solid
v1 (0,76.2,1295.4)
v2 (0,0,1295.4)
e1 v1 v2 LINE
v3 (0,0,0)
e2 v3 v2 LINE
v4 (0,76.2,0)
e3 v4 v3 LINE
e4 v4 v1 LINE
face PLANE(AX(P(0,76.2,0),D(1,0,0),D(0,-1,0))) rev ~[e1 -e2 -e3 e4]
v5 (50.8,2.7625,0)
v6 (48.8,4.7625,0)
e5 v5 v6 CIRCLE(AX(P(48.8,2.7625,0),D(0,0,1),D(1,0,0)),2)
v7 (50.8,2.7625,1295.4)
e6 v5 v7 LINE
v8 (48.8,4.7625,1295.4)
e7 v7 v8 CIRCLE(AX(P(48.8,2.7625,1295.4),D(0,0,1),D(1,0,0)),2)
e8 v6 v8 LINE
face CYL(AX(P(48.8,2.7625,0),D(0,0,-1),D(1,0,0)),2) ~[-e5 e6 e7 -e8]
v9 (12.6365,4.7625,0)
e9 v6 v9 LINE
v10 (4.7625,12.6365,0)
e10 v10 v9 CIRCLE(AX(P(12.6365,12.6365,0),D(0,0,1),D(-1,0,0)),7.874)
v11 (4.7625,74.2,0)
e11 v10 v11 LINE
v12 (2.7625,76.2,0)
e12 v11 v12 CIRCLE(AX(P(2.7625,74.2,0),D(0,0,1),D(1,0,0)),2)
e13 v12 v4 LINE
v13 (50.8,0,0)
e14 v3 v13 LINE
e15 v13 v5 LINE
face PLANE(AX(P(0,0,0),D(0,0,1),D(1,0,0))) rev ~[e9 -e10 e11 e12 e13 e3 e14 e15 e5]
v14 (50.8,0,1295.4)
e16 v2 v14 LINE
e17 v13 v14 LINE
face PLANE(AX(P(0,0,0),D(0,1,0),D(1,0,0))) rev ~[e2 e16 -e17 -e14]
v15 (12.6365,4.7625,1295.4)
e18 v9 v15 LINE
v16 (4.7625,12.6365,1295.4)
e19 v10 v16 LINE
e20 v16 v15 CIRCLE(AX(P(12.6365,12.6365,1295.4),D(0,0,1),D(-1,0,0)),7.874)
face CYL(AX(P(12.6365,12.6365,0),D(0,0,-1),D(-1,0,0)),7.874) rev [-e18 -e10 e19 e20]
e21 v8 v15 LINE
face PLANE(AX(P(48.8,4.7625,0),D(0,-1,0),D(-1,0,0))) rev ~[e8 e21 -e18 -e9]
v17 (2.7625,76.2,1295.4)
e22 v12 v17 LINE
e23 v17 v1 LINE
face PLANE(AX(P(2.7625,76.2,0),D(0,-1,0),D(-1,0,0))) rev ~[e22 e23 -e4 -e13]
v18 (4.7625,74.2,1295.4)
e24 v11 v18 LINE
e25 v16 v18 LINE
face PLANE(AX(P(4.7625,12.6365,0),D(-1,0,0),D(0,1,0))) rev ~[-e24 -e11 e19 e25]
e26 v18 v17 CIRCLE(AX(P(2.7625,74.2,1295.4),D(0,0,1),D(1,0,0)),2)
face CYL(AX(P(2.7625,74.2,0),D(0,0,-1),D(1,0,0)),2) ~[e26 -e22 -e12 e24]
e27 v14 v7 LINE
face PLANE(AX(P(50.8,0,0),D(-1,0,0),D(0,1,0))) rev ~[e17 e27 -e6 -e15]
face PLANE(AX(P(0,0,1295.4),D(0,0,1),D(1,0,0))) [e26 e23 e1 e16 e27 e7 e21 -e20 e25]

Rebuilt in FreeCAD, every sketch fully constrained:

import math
import FreeCAD as App
import Part
import Sketcher
from FreeCAD import Vector
Q = App.Units.Quantity

doc = App.newDocument("Part")
params = doc.addObject("Spreadsheet::Sheet", "Params")
for row, (alias, value) in enumerate([
    ("sketch1_width", "2 in"),
    ("sketch1_height", "3 in"),
    ("sketch1_radius", "0.31 in"),
    ("pad1_length", "51 in"),
], start=1):
    params.set(f"A{row}", alias)
    params.set(f"B{row}", "=" + value)
    params.setAlias(f"B{row}", alias)

body = doc.addObject("PartDesign::Body", "Body")

sketch1 = doc.addObject("Sketcher::SketchObject", "Sketch")
body.addObject(sketch1)
sketch1.AttachmentSupport = (doc.XY_Plane, [""])
sketch1.MapMode = "FlatFace"
sketch1.addGeometry([
    Part.LineSegment(Vector(2.8, 76.2, 0), Vector(0, 76.2, 0)),
    Part.LineSegment(Vector(0, 76.2, 0), Vector(0, 0, 0)),
    Part.LineSegment(Vector(0, 0, 0), Vector(50.8, 0, 0)),
    Part.LineSegment(Vector(50.8, 0, 0), Vector(50.8, 2.8, 0)),
    Part.ArcOfCircle(Part.Circle(Vector(48.8, 2.8, 0), Vector(0, 0, 1), 2), math.radians(0), math.radians(90)),
    Part.LineSegment(Vector(48.8, 4.8, 0), Vector(12.6, 4.8, 0)),
    Part.ArcOfCircle(Part.Circle(Vector(12.6, 12.6, 0), Vector(0, 0, 1), 7.9), math.radians(180), math.radians(270)),
    Part.LineSegment(Vector(4.8, 12.6, 0), Vector(4.8, 74.2, 0)),
    Part.ArcOfCircle(Part.Circle(Vector(2.8, 74.2, 0), Vector(0, 0, 1), 2), math.radians(0), math.radians(90)),
], False)
sketch1.addConstraint([
    Sketcher.Constraint("Coincident", 0, 2, 1, 1),
    Sketcher.Constraint("Coincident", 1, 2, 2, 1),
    Sketcher.Constraint("Coincident", 2, 2, 3, 1),
    Sketcher.Constraint("Tangent", 3, 2, 4, 1),
    Sketcher.Constraint("Tangent", 4, 2, 5, 1),
    Sketcher.Constraint("Tangent", 5, 2, 6, 2),
    Sketcher.Constraint("Tangent", 6, 1, 7, 1),
    Sketcher.Constraint("Tangent", 7, 2, 8, 1),
    Sketcher.Constraint("Tangent", 8, 2, 0, 1),
    Sketcher.Constraint("Horizontal", 0),
    Sketcher.Constraint("Vertical", 1),
    Sketcher.Constraint("Horizontal", 2),
    Sketcher.Constraint("Vertical", 3),
    Sketcher.Constraint("Horizontal", 5),
    Sketcher.Constraint("Vertical", 7),
    Sketcher.Constraint("Coincident", 1, 2, -1, 1),
    Sketcher.Constraint("Equal", 4, 8),
    Sketcher.Constraint("Equal", 0, 3),
    Sketcher.Constraint("DistanceX", 2, 1, 2, 2, Q("2 in")),
    Sketcher.Constraint("DistanceY", 1, 2, 1, 1, Q("3 in")),
    Sketcher.Constraint("Radius", 6, Q("0.31 in")),
    Sketcher.Constraint("Radius", 4, 2.0),
    Sketcher.Constraint("DistanceY", -1, 1, 4, 2, Q("0.1875 in")),
])
sketch1.setExpression("Constraints[18]", "Params.sketch1_width")
sketch1.setExpression("Constraints[19]", "Params.sketch1_height")
sketch1.setExpression("Constraints[20]", "Params.sketch1_radius")
pad1 = doc.addObject("PartDesign::Pad", "Pad")
body.addObject(pad1)
pad1.Profile = sketch1
pad1.setExpression("Length", "Params.pad1_length")

doc.recompute()
